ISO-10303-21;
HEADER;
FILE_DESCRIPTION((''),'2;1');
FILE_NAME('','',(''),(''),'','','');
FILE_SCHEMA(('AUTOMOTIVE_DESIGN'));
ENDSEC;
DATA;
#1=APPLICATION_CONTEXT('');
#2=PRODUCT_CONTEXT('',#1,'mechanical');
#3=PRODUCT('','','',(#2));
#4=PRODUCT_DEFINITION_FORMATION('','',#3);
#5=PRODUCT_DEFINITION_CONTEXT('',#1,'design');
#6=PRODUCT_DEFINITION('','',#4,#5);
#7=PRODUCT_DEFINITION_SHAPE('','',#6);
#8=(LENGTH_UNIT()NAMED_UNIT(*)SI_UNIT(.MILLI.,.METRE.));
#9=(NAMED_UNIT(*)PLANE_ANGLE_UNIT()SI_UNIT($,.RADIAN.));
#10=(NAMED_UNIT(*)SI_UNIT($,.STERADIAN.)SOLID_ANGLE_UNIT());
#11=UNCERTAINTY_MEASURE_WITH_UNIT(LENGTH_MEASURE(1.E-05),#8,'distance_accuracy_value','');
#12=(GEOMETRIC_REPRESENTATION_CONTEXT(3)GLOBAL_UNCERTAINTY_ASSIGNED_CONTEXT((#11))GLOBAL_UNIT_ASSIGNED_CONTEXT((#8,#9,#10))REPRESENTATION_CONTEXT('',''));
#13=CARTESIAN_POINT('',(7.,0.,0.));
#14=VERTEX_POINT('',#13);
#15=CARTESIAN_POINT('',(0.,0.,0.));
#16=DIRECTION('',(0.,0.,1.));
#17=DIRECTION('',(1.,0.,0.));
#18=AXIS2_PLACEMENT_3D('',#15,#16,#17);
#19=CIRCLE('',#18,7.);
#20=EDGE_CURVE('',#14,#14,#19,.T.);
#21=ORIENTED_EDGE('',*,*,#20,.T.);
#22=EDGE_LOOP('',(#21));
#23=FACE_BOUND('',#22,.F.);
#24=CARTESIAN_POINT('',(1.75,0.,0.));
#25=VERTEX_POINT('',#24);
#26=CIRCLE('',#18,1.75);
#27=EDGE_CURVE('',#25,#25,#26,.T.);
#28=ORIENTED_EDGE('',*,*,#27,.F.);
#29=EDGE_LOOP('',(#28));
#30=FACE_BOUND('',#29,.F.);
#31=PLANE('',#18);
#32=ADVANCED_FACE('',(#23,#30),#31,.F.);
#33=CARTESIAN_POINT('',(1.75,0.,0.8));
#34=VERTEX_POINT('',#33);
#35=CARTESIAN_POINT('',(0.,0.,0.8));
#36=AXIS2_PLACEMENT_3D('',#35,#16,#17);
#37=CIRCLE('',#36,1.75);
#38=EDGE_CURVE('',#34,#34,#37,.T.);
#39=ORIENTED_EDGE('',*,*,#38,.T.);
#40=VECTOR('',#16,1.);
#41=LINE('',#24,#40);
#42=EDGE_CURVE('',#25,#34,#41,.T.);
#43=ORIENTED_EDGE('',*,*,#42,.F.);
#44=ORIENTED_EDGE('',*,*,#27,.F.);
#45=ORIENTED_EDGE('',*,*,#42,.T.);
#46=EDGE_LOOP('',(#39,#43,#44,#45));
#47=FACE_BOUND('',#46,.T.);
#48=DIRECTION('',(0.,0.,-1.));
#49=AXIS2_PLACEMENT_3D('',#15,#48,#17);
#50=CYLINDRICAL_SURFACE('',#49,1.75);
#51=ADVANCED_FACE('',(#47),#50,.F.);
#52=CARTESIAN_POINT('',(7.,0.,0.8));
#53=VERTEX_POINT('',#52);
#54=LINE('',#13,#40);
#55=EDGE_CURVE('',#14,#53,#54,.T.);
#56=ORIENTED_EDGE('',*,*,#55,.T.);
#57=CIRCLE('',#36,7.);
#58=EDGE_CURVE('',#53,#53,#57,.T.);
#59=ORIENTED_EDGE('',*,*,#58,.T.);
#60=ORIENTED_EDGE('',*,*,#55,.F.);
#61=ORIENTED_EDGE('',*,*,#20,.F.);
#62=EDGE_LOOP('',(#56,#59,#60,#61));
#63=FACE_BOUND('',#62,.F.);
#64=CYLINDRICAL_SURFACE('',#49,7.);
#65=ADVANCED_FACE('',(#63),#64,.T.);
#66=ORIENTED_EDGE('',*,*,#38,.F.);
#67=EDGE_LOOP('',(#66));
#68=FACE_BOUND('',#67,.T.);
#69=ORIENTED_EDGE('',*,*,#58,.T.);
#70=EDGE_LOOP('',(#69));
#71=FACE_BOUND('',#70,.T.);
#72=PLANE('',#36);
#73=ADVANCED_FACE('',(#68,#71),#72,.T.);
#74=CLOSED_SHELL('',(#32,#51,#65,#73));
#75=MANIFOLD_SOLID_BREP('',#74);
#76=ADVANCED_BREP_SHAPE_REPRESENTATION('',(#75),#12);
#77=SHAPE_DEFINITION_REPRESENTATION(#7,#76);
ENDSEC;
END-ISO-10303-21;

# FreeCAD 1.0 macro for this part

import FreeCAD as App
import Part
import Sketcher
Q = App.Units.Quantity

doc = App.newDocument("Part")
body = doc.addObject("PartDesign::Body", "Body")

sketch1 = doc.addObject("Sketcher::SketchObject", "Sketch")
body.addObject(sketch1)
sketch1.AttachmentSupport = (doc.XY_Plane, [""])
sketch1.MapMode = "FlatFace"
sketch1.addGeometry([
    Part.Circle(App.Vector(0, 0, 0), App.Vector(0, 0, 1), 7),
    Part.Circle(App.Vector(0, 0, 0), App.Vector(0, 0, 1), 1.75),
], False)
sketch1.addConstraint([
    Sketcher.Constraint("Coincident", 0, 3, -1, 1),
    Sketcher.Constraint("Coincident", 1, 3, -1, 1),
    Sketcher.Constraint("Diameter", 0, Q("14 mm")),
    Sketcher.Constraint("Diameter", 1, Q("3.5 mm")),
])
pad1 = doc.addObject("PartDesign::Pad", "Pad")
body.addObject(pad1)
pad1.Profile = sketch1
pad1.Length = 0.8

doc.recompute()
